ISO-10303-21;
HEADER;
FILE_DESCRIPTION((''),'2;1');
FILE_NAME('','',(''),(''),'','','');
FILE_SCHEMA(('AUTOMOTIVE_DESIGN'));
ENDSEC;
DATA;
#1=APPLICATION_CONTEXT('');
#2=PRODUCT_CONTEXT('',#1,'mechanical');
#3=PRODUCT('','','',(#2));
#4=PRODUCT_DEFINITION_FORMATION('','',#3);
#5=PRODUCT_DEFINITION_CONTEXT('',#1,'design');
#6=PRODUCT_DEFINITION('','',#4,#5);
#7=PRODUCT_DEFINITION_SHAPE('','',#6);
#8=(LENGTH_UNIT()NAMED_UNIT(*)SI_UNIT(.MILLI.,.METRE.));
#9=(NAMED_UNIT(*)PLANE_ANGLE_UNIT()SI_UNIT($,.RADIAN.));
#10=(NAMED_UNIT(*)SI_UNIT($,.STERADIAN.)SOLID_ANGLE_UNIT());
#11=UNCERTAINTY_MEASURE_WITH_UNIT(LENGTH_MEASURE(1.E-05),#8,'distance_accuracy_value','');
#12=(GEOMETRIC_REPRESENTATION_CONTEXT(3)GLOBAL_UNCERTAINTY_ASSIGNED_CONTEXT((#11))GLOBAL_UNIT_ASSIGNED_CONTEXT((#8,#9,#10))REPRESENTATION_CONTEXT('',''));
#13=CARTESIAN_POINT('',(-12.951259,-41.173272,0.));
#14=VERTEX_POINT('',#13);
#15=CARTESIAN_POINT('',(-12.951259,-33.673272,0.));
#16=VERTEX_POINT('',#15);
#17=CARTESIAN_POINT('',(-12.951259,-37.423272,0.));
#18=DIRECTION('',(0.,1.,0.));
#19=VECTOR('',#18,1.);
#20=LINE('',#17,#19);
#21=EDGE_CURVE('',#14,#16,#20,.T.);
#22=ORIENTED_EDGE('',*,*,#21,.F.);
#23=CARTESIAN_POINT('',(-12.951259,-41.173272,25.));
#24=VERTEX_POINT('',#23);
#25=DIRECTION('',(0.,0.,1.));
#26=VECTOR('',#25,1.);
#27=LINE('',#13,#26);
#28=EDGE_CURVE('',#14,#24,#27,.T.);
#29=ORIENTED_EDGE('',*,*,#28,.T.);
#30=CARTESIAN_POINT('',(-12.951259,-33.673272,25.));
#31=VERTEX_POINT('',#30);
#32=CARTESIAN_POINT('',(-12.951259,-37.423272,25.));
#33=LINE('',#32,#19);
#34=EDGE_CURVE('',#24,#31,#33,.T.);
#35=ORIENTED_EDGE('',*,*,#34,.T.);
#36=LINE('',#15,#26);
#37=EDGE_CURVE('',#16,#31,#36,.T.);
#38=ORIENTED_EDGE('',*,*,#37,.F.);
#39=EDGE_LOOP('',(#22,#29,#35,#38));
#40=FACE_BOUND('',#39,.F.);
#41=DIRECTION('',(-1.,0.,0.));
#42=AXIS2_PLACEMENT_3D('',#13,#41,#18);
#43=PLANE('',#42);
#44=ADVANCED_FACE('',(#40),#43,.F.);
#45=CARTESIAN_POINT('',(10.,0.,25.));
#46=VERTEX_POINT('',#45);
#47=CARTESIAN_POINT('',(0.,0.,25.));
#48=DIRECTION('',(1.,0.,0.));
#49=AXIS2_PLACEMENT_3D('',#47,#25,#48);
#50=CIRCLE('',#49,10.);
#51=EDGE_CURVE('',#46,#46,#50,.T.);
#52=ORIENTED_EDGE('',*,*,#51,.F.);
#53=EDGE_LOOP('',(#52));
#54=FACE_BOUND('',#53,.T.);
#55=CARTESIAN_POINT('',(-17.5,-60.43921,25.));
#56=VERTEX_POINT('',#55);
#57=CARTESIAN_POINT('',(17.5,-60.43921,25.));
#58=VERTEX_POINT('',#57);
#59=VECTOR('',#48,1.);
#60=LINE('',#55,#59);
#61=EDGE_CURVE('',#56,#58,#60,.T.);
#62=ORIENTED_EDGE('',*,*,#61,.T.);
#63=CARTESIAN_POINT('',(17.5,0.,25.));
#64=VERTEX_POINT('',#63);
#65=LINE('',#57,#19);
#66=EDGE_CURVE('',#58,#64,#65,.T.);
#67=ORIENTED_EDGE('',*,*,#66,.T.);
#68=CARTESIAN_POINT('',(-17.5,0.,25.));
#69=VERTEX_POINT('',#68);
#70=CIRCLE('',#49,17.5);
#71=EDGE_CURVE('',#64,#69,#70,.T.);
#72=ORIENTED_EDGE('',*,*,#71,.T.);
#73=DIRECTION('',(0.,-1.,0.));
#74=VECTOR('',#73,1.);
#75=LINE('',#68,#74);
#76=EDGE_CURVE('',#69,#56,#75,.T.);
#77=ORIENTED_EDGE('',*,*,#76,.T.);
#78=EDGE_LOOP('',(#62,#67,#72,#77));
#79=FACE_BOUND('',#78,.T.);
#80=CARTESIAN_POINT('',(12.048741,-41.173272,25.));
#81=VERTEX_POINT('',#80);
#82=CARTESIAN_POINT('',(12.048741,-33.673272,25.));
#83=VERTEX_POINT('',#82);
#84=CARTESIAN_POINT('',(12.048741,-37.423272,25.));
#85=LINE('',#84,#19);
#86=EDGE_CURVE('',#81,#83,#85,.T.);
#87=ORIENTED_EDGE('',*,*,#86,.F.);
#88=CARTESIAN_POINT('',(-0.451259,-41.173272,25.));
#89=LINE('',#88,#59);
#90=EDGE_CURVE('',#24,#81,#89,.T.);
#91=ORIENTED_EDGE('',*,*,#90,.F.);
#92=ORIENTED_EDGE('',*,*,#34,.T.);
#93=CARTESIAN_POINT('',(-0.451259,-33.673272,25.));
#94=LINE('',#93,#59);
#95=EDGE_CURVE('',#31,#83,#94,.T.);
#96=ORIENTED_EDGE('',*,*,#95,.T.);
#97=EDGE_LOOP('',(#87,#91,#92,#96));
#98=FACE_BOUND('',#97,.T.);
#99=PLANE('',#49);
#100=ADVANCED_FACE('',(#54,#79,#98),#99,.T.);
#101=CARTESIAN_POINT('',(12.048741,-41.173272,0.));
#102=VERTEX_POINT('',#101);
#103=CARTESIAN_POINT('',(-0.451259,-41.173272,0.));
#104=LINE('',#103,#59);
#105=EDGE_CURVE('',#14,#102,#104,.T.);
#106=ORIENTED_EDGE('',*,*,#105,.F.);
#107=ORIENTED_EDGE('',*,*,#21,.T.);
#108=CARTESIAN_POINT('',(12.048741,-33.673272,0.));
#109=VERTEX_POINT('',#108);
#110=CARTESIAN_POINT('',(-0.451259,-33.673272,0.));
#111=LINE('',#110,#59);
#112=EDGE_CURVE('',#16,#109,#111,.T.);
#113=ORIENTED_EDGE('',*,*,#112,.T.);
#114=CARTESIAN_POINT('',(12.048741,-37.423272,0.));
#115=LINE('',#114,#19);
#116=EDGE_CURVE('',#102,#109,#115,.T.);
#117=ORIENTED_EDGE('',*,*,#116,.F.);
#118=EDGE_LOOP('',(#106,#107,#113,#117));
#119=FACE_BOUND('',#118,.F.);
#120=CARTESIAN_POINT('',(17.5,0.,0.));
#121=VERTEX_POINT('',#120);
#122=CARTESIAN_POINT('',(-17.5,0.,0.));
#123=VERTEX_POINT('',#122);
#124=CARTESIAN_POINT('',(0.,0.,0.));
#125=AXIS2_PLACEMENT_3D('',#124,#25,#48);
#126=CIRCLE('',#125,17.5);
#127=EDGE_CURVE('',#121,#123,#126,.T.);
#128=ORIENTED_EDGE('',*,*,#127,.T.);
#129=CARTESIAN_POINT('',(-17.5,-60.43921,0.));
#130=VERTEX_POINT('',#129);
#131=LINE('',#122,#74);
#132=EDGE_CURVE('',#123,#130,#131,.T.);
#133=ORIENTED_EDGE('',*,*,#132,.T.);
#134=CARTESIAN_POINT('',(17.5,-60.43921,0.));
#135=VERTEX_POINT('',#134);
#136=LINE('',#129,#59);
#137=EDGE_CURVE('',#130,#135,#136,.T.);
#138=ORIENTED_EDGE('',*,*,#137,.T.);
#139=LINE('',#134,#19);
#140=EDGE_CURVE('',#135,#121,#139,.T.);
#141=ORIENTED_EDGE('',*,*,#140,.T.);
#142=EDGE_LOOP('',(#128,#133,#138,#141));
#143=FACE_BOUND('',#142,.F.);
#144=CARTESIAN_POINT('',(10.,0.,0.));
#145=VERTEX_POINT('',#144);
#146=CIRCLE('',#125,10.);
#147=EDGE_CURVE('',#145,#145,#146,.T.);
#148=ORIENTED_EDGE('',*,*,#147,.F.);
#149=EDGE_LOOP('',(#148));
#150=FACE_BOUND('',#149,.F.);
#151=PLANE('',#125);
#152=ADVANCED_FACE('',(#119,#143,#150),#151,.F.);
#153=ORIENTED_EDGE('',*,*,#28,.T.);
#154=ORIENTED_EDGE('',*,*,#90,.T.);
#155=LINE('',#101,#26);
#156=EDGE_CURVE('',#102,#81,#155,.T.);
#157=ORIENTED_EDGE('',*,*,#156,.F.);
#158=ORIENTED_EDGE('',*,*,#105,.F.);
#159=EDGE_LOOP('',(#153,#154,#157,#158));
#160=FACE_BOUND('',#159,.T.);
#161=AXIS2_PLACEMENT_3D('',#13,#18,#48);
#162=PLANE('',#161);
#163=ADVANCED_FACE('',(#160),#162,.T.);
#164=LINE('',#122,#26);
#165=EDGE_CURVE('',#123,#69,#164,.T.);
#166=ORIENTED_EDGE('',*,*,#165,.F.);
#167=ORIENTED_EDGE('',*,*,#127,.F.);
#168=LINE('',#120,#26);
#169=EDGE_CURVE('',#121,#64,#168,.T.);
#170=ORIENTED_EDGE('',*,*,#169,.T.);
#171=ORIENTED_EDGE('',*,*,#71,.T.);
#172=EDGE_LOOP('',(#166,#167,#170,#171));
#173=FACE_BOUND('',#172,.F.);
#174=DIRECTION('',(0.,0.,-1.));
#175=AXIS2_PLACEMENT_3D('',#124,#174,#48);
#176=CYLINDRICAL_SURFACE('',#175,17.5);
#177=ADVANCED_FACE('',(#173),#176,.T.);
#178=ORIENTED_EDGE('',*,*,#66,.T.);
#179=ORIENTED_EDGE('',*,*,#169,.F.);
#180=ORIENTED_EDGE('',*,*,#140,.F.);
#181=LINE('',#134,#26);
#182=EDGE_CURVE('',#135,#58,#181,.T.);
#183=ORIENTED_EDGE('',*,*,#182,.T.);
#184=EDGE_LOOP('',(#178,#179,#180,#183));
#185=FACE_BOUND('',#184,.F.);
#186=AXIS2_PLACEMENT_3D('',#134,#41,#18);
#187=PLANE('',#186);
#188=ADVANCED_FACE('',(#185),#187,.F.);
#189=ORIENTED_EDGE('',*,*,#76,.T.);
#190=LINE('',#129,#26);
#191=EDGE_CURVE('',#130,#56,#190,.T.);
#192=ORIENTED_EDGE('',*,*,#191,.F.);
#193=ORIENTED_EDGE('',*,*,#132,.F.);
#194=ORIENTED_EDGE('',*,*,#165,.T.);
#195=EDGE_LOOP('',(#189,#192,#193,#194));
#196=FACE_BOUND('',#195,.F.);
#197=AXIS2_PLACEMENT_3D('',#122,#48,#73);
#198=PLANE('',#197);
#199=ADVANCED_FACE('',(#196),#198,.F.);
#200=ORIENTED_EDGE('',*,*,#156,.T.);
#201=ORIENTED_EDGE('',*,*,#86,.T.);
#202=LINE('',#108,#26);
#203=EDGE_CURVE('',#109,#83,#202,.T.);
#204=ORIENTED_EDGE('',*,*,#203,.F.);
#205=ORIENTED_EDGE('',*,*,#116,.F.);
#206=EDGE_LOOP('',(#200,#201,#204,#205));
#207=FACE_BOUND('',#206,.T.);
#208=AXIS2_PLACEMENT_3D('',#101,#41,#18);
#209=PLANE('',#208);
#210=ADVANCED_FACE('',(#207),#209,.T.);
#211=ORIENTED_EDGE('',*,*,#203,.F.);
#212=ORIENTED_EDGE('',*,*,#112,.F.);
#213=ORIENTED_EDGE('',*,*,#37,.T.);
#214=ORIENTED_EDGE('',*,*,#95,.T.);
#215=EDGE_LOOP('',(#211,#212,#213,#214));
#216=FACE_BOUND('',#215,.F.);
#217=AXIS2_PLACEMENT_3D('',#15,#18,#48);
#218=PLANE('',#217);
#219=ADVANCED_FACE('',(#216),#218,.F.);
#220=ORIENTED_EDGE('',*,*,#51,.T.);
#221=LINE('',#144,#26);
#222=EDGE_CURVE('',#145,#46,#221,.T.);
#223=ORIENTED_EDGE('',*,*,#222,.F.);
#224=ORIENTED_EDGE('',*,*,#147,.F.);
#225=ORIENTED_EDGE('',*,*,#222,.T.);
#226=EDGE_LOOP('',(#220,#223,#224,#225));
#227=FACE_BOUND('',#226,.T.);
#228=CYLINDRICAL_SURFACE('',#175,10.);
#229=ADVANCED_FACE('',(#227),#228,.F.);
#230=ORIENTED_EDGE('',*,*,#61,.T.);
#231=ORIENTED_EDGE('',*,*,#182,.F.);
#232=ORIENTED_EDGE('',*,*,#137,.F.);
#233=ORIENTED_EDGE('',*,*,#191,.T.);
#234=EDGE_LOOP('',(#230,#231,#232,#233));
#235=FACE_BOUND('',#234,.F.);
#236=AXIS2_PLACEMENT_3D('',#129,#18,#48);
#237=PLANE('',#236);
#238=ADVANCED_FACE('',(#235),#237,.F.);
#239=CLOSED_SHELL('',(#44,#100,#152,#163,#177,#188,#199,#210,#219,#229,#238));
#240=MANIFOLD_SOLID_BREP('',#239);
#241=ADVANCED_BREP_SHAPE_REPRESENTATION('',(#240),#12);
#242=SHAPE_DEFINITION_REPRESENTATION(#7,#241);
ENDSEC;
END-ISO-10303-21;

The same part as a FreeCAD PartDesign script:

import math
import FreeCAD as App
import Part
import Sketcher
from FreeCAD import Vector

doc = App.newDocument("Part")
body = doc.addObject("PartDesign::Body", "Body")

# Sketch on XY plane
sketch1 = body.newObject("Sketcher::SketchObject", "Sketch")
sketch1.AttachmentSupport = (doc.getObject("XY_Plane"), [""])
sketch1.MapMode = "FlatFace"
sketch1.addGeometry([
    Part.ArcOfCircle(Part.Circle(Vector(0, 0, 0), Vector(0, 0, 1), 18), math.radians(0), math.radians(180)),  # 0
    Part.LineSegment(Vector(-18, 0, 0), Vector(-18, -60, 0)),  # 1
    Part.LineSegment(Vector(-18, -60, 0), Vector(18, -60, 0)),  # 2
    Part.LineSegment(Vector(18, -60, 0), Vector(18, 0, 0)),  # 3
    Part.LineSegment(Vector(12, -41, 0), Vector(-13, -41, 0)),  # 4
    Part.LineSegment(Vector(-13, -41, 0), Vector(-13, -34, 0)),  # 5
    Part.LineSegment(Vector(-13, -34, 0), Vector(12, -34, 0)),  # 6
    Part.LineSegment(Vector(12, -34, 0), Vector(12, -41, 0)),  # 7
    Part.Circle(Vector(0, 0, 0), Vector(0, 0, 1), 10),  # 8
], False)
sketch1.addConstraint([
    Sketcher.Constraint("Tangent", 0, 2, 1, 1),
    Sketcher.Constraint("Coincident", 1, 2, 2, 1),
    Sketcher.Constraint("Coincident", 2, 2, 3, 1),
    Sketcher.Constraint("Tangent", 3, 2, 0, 1),
    Sketcher.Constraint("Coincident", 4, 2, 5, 1),
    Sketcher.Constraint("Coincident", 5, 2, 6, 1),
    Sketcher.Constraint("Coincident", 6, 2, 7, 1),
    Sketcher.Constraint("Coincident", 7, 2, 4, 1),
    Sketcher.Constraint("Vertical", 1),
    Sketcher.Constraint("Horizontal", 2),
    Sketcher.Constraint("Vertical", 3),
    Sketcher.Constraint("Horizontal", 4),
    Sketcher.Constraint("Vertical", 5),
    Sketcher.Constraint("Horizontal", 6),
    Sketcher.Constraint("Vertical", 7),
    Sketcher.Constraint("Coincident", 0, 3, -1, 1),
    Sketcher.Constraint("Coincident", 8, 3, -1, 1),
    Sketcher.Constraint("Diameter", 8, 20.0),
    Sketcher.Constraint("Radius", 0, 17.5),
    Sketcher.Constraint("DistanceX", 4, 2, 4, 1, 25.0),
    Sketcher.Constraint("DistanceY", 5, 1, 5, 2, 7.5),
    Sketcher.Constraint("DistanceY", 1, 2, 1, 1, 60.43921),
    Sketcher.Constraint("DistanceX", 4, 2, -1, 1, 12.951259),
    Sketcher.Constraint("DistanceY", 4, 2, -1, 1, 41.173272),
])
pad1 = body.newObject("PartDesign::Pad", "Pad")
pad1.Profile = sketch1
pad1.Length = 25

doc.recompute()
